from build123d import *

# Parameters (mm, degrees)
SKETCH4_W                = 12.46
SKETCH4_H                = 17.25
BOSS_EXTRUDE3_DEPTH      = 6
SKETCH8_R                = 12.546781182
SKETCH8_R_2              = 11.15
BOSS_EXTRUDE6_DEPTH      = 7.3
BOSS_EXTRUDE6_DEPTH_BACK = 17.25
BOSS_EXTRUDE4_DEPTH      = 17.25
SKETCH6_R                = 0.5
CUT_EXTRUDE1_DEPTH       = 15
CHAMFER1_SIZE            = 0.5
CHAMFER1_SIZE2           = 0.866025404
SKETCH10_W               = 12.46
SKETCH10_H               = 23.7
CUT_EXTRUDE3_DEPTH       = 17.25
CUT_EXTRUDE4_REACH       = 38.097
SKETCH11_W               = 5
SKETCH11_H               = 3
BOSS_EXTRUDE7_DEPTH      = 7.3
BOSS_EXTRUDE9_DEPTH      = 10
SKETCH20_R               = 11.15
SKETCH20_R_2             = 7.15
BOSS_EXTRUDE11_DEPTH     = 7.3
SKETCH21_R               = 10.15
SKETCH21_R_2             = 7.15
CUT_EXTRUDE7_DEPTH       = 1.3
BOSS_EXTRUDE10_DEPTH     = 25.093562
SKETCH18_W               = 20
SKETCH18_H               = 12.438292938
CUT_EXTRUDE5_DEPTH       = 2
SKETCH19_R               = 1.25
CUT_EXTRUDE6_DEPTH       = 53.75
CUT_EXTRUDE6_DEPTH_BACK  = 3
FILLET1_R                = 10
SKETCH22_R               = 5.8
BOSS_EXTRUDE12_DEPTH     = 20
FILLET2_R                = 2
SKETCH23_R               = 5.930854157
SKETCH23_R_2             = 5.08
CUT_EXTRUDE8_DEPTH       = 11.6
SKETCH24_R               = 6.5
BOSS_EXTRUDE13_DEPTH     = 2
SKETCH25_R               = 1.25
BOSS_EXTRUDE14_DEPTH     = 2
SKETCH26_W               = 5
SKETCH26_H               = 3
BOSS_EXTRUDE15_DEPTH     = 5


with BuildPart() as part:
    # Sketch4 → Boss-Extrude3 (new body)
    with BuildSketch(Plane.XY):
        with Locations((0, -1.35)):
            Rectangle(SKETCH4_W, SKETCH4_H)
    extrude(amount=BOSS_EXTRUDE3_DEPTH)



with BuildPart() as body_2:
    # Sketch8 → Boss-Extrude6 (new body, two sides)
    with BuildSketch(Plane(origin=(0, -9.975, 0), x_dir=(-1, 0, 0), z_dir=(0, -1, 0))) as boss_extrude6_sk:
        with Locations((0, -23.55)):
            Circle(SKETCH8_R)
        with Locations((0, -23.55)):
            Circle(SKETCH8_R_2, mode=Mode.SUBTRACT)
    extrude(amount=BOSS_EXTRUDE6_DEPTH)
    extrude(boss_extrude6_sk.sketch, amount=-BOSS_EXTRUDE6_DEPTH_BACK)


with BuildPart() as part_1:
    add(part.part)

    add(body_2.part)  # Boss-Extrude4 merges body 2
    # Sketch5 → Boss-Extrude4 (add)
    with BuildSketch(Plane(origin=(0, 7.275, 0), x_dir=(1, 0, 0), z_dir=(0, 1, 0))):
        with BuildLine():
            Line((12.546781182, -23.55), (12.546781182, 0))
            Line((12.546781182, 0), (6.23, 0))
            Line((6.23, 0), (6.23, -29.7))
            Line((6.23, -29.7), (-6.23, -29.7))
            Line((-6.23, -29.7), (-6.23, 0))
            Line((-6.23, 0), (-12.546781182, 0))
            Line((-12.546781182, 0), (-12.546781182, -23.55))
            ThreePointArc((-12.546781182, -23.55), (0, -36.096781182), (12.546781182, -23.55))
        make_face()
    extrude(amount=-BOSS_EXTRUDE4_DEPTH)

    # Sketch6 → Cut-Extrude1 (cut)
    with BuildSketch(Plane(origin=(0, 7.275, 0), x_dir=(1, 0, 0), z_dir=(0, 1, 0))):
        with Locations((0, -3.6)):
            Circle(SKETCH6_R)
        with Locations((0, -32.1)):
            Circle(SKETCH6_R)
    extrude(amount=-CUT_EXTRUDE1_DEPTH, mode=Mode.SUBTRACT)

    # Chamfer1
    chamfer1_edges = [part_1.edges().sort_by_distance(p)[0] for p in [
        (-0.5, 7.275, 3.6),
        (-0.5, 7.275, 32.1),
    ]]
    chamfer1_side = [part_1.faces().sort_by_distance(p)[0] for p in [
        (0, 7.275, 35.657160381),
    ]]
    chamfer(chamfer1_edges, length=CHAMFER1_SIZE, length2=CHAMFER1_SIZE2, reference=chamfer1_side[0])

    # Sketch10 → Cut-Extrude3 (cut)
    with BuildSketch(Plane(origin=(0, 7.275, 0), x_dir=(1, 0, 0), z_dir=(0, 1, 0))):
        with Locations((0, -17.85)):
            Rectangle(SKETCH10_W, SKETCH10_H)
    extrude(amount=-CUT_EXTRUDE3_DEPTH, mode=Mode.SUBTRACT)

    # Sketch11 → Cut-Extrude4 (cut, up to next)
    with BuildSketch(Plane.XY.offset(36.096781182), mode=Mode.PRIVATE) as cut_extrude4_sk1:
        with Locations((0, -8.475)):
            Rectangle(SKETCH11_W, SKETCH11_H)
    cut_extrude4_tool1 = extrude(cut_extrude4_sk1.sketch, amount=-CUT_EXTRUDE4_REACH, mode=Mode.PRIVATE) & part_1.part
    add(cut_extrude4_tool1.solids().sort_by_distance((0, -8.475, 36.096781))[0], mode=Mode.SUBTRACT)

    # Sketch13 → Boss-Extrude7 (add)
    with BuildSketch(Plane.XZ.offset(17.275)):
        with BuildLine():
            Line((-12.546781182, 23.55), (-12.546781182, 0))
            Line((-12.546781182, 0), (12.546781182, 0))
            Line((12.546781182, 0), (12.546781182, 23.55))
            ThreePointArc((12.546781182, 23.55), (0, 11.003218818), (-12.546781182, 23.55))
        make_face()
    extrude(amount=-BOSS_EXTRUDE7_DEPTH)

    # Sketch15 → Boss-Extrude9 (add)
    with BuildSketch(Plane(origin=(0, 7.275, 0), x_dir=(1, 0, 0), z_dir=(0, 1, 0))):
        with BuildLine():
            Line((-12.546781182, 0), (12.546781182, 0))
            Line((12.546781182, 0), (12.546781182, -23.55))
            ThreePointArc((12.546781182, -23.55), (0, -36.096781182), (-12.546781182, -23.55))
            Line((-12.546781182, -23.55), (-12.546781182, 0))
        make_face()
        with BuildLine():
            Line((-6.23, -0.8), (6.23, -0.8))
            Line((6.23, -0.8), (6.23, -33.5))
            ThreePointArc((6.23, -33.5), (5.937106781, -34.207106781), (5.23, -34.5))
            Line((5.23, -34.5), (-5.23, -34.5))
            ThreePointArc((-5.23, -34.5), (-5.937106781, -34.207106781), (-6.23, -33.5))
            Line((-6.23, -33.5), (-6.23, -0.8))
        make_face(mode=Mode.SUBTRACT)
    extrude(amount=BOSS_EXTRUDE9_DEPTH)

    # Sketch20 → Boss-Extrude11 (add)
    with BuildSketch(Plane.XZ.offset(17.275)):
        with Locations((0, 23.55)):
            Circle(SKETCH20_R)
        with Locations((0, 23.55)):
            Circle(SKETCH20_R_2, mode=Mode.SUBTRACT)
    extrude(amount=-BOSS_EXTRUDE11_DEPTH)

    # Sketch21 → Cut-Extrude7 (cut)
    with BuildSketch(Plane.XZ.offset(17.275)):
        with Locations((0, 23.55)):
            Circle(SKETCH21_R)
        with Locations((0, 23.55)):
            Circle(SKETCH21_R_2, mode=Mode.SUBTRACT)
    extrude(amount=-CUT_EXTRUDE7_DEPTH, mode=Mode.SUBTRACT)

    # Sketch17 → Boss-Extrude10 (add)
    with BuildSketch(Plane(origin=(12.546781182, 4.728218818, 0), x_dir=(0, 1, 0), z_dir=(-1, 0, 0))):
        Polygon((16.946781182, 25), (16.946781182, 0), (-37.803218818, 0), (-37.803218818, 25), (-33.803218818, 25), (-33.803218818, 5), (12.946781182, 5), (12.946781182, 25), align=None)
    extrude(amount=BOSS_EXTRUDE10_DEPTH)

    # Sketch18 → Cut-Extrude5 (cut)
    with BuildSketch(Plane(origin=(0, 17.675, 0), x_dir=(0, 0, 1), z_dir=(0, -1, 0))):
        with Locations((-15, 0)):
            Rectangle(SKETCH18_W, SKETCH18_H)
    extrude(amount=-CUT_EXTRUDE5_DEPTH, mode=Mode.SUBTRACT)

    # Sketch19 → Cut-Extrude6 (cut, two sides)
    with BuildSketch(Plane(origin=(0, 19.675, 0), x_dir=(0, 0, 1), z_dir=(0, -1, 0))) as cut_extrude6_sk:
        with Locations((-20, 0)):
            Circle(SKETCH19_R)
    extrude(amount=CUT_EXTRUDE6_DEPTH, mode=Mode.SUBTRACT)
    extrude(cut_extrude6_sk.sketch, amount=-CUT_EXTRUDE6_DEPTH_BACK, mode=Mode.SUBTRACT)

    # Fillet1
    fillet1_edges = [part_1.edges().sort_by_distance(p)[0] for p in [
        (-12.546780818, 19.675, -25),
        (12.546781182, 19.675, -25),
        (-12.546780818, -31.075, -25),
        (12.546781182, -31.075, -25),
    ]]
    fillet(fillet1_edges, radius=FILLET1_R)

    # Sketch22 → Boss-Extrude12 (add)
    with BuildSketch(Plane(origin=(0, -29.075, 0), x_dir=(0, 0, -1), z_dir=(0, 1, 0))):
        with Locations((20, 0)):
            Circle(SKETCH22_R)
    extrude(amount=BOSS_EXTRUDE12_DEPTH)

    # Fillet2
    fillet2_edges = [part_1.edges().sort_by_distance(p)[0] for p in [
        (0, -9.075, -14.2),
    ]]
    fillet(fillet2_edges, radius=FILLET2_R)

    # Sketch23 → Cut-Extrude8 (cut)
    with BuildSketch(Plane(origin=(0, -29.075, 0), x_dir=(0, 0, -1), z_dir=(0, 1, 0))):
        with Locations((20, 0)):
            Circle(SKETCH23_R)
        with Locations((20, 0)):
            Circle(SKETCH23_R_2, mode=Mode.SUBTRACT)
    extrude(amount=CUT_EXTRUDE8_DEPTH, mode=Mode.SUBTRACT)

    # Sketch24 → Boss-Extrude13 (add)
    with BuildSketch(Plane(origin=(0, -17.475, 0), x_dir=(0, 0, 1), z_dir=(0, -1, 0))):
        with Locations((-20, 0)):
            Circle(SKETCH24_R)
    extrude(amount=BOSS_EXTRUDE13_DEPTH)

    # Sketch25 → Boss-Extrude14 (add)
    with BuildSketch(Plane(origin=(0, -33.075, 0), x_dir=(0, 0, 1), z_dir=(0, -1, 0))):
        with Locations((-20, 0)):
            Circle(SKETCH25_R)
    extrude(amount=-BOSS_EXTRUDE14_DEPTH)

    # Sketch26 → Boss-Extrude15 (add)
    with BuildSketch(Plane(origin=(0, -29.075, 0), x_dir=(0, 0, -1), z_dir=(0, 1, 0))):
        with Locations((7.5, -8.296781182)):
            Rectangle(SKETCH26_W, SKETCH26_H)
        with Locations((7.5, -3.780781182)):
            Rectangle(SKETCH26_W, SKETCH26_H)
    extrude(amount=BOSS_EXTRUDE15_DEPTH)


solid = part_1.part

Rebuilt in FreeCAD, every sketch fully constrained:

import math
import FreeCAD as App
import Part
import Sketcher

V = App.Vector
Q = App.Units.Quantity


def edges_at(feature, points):
    """Names of the edges that pass closest to the given points."""
    edges = feature.Shape.Edges
    near = lambda p: min(range(len(edges)), key=lambda i: edges[i].distToShape(Part.Vertex(*p))[0])
    return sorted({f"Edge{near(p) + 1}" for p in points})


def add_polygon(sketch, points):
    """Adds a closed chain of lines whose ends are joined by coincident constraints."""
    first, n = sketch.GeometryCount, len(points)
    for a, b in zip(points, points[1:] + points[:1]):
        sketch.addGeometry(Part.LineSegment(App.Vector(*a, 0), App.Vector(*b, 0)), False)
    for i in range(n):
        sketch.addConstraint(Sketcher.Constraint("Coincident", first + i, 2, first + (i + 1) % n, 1))

doc = App.newDocument("Part")
params = doc.addObject("Spreadsheet::Sheet", "Params")
for row, (alias, value) in enumerate([
    ("sketch1_width", "12.46 mm"),
    ("sketch1_height", "17.25 mm"),
    ("pad1_length", "6 mm"),
    ("sketch2_diameter", "22.3 mm"),
    ("pad2_length", "7.3 mm"),
    ("pad2_length2", "17.25 mm"),
    ("sketch3_height", "29.7 mm"),
    ("sketch3_width", "12.46 mm"),
    ("sketch3_height2", "23.55 mm"),
    ("pad3_length", "17.25 mm"),
    ("sketch4_diameter", "1 mm"),
    ("pocket1_length", "15 mm"),
    ("chamfer_size", "0.5 mm"),
    ("chamfer_size2", "0.866025 mm"),
    ("sketch5_height", "23.7 mm"),
    ("sketch5_width", "12.46 mm"),
    ("pocket2_length", "17.25 mm"),
    ("sketch6_width", "5 mm"),
    ("sketch6_height", "3 mm"),
    ("sketch7_height", "23.55 mm"),
    ("pad4_length", "7.3 mm"),
    ("sketch8_radius", "1 mm"),
    ("sketch8_height", "32.7 mm"),
    ("sketch8_width", "12.46 mm"),
    ("sketch8_height2", "23.55 mm"),
    ("pad5_length", "10 mm"),
    ("sketch9_diameter", "22.3 mm"),
    ("sketch9_diameter2", "14.3 mm"),
    ("pad6_length", "7.3 mm"),
    ("sketch10_diameter", "20.3 mm"),
    ("sketch10_diameter2", "14.3 mm"),
    ("pocket4_length", "1.3 mm"),
    ("sketch11_width", "4 mm"),
    ("sketch11_height", "25 mm"),
    ("sketch11_height2", "20 mm"),
    ("sketch11_width2", "46.75 mm"),
    ("pad7_length", "25.093562 mm"),
    ("sketch12_height", "20 mm"),
    ("pocket5_length", "2 mm"),
    ("sketch13_diameter", "2.5 mm"),
    ("fillet_radius", "10 mm"),
    ("sketch14_diameter", "11.6 mm"),
    ("pad8_length", "20 mm"),
    ("fillet2_radius", "2 mm"),
    ("sketch15_diameter", "10.16 mm"),
    ("pocket7_length", "11.6 mm"),
    ("sketch16_diameter", "13 mm"),
    ("pad9_length", "2 mm"),
    ("sketch17_diameter", "2.5 mm"),
    ("pad10_length", "2 mm"),
    ("sketch18_width", "3 mm"),
    ("sketch18_height", "5 mm"),
    ("pad11_length", "5 mm"),
], start=1):
    params.set(f"A{row}", alias)
    params.set(f"B{row}", "=" + value)
    params.setAlias(f"B{row}", alias)

body = doc.addObject("PartDesign::Body", "Body")

sketch1 = body.newObject("Sketcher::SketchObject", "Sketch")
sketch1.AttachmentSupport = (doc.getObject("XY_Plane"), [""])
sketch1.MapMode = "FlatFace"
add_polygon(sketch1, [(-6, 7), (-6, -10), (6, -10), (6, 7)])
sketch1.addConstraint([
    Sketcher.Constraint("Vertical", 0),
    Sketcher.Constraint("Horizontal", 1),
    Sketcher.Constraint("Vertical", 2),
    Sketcher.Constraint("Horizontal", 3),
    Sketcher.Constraint("DistanceX", 1, 1, 1, 2, Q("12.46 mm")),
    Sketcher.Constraint("DistanceY", 0, 2, 0, 1, Q("17.25 mm")),
    Sketcher.Constraint("DistanceX", 0, 2, -1, 1, Q("6.23 mm")),
    Sketcher.Constraint("DistanceY", 0, 2, -1, 1, Q("9.975 mm")),
])
sketch1.setExpression("Constraints[8]", "Params.sketch1_width")
sketch1.setExpression("Constraints[9]", "Params.sketch1_height")
pad1 = body.newObject("PartDesign::Pad", "Pad")
pad1.Profile = sketch1
pad1.setExpression("Length", "Params.pad1_length")
body2 = doc.addObject("PartDesign::Body", "Body001")

sketch2 = body2.newObject("Sketcher::SketchObject", "Sketch001")
sketch2.AttachmentSupport = (doc.getObject("XZ_Plane001"), [""])
sketch2.MapMode = "FlatFace"
sketch2.AttachmentOffset = App.Placement(V(0, 0, 9.975), App.Rotation())
sketch2.addGeometry([
    Part.Circle(V(0, 24, 0), V(0, 0, 1), 13),
    Part.Circle(V(0, 24, 0), V(0, 0, 1), 11),
], False)
sketch2.addConstraint([
    Sketcher.Constraint("Coincident", 1, 3, 0, 3),
    Sketcher.Constraint("PointOnObject", 0, 3, -2),
    Sketcher.Constraint("Diameter", 1, Q("22.3 mm")),
    Sketcher.Constraint("DistanceY", -1, 1, 0, 3, Q("23.55 mm")),
    Sketcher.Constraint("Diameter", 0, Q("25.093562 mm")),
])
sketch2.setExpression("Constraints[2]", "Params.sketch2_diameter")
pad2 = body2.newObject("PartDesign::Pad", "Pad001")
pad2.Profile = sketch2
pad2.Type = "TwoLengths"
pad2.setExpression("Length", "Params.pad2_length")
pad2.setExpression("Length2", "Params.pad2_length2")
body.AllowCompound = True
doc.recompute()

boolean = body.newObject("PartDesign::Boolean", "Boolean")
boolean.Type = "Fuse"
boolean.addObjects([body2])

sketch3 = body.newObject("Sketcher::SketchObject", "Sketch002")
sketch3.AttachmentSupport = (doc.getObject("XZ_Plane"), [""])
sketch3.MapMode = "FlatFace"
sketch3.AttachmentOffset = App.Placement(V(0, 0, -7.275), App.Rotation())
sketch3.addGeometry([
    Part.LineSegment(V(13, 24, 0), V(13, 0, 0)),
    Part.LineSegment(V(13, 0, 0), V(6, 0, 0)),
    Part.LineSegment(V(6, 0, 0), V(6, 30, 0)),
    Part.LineSegment(V(6, 30, 0), V(-6, 30, 0)),
    Part.LineSegment(V(-6, 30, 0), V(-6, 0, 0)),
    Part.LineSegment(V(-6, 0, 0), V(-13, 0, 0)),
    Part.LineSegment(V(-13, 0, 0), V(-13, 24, 0)),
    Part.ArcOfCircle(Part.Circle(V(0, 24, 0), V(0, 0, 1), 13), math.radians(0), math.radians(180)),
], False)
sketch3.addConstraint([
    Sketcher.Constraint("Coincident", 0, 2, 1, 1),
    Sketcher.Constraint("Coincident", 1, 2, 2, 1),
    Sketcher.Constraint("Coincident", 2, 2, 3, 1),
    Sketcher.Constraint("Coincident", 3, 2, 4, 1),
    Sketcher.Constraint("Coincident", 4, 2, 5, 1),
    Sketcher.Constraint("Coincident", 5, 2, 6, 1),
    Sketcher.Constraint("Tangent", 6, 2, 7, 2),
    Sketcher.Constraint("Tangent", 7, 1, 0, 1),
    Sketcher.Constraint("Vertical", 0),
    Sketcher.Constraint("Horizontal", 1),
    Sketcher.Constraint("Vertical", 2),
    Sketcher.Constraint("Horizontal", 3),
    Sketcher.Constraint("Vertical", 4),
    Sketcher.Constraint("Horizontal", 5),
    Sketcher.Constraint("Vertical", 6),
    Sketcher.Constraint("Symmetric", 1, 2, 4, 2, -1, 1),
    Sketcher.Constraint("Symmetric", 0, 2, 5, 2, -2),
    Sketcher.Constraint("DistanceY", 2, 1, 2, 2, Q("29.7 mm")),
    Sketcher.Constraint("DistanceX", 3, 2, 3, 1, Q("12.46 mm")),
    Sketcher.Constraint("DistanceY", 0, 2, 0, 1, Q("23.55 mm")),
    Sketcher.Constraint("Radius", 7, Q("12.546781 mm")),
])
sketch3.setExpression("Constraints[17]", "Params.sketch3_height")
sketch3.setExpression("Constraints[18]", "Params.sketch3_width")
sketch3.setExpression("Constraints[19]", "Params.sketch3_height2")
pad3 = body.newObject("PartDesign::Pad", "Pad002")
pad3.Profile = sketch3
pad3.setExpression("Length", "Params.pad3_length")

sketch4 = body.newObject("Sketcher::SketchObject", "Sketch003")
sketch4.AttachmentSupport = (doc.getObject("XZ_Plane"), [""])
sketch4.MapMode = "FlatFace"
sketch4.AttachmentOffset = App.Placement(V(0, 0, -7.275), App.Rotation())
sketch4.addGeometry([
    Part.Circle(V(0, 3.6, 0), V(0, 0, 1), 0.5),
    Part.Circle(V(0, 32.1, 0), V(0, 0, 1), 0.5),
], False)
sketch4.addConstraint([
    Sketcher.Constraint("Equal", 0, 1),
    Sketcher.Constraint("PointOnObject", 0, 3, -2),
    Sketcher.Constraint("PointOnObject", 1, 3, -2),
    Sketcher.Constraint("Diameter", 0, Q("1 mm")),
    Sketcher.Constraint("DistanceY", -1, 1, 0, 3, Q("3.6 mm")),
    Sketcher.Constraint("DistanceY", -1, 1, 1, 3, Q("32.1 mm")),
])
sketch4.setExpression("Constraints[3]", "Params.sketch4_diameter")
pocket1 = body.newObject("PartDesign::Pocket", "Pocket")
pocket1.Profile = sketch4
pocket1.setExpression("Length", "Params.pocket1_length")
pocket1.Reversed = True
doc.recompute()

chamfer = body.newObject("PartDesign::Chamfer", "Chamfer")
chamfer.Base = (pocket1, edges_at(pocket1, [(-0.5, 7.275, 3.6), (-0.5, 7.275, 32.1)]))
chamfer.ChamferType = "Two distances"
chamfer.setExpression("Size", "Params.chamfer_size")
chamfer.setExpression("Size2", "Params.chamfer_size2")

sketch5 = body.newObject("Sketcher::SketchObject", "Sketch004")
sketch5.AttachmentSupport = (doc.getObject("XZ_Plane"), [""])
sketch5.MapMode = "FlatFace"
sketch5.AttachmentOffset = App.Placement(V(0, 0, -7.275), App.Rotation())
add_polygon(sketch5, [(-6, 6), (-6, 30), (6, 30), (6, 6)])
sketch5.addConstraint([
    Sketcher.Constraint("Vertical", 0),
    Sketcher.Constraint("Horizontal", 1),
    Sketcher.Constraint("Vertical", 2),
    Sketcher.Constraint("Horizontal", 3),
    Sketcher.Constraint("DistanceY", 0, 1, 0, 2, Q("23.7 mm")),
    Sketcher.Constraint("DistanceY", -1, 1, 2, 2, Q("6 mm")),
    Sketcher.Constraint("DistanceX", 1, 1, 1, 2, Q("12.46 mm")),
    Sketcher.Constraint("DistanceX", 0, 2, -1, 1, Q("6.23 mm")),
])
sketch5.setExpression("Constraints[8]", "Params.sketch5_height")
sketch5.setExpression("Constraints[10]", "Params.sketch5_width")
pocket2 = body.newObject("PartDesign::Pocket", "Pocket001")
pocket2.Profile = sketch5
pocket2.setExpression("Length", "Params.pocket2_length")
pocket2.Reversed = True

sketch6 = body.newObject("Sketcher::SketchObject", "Sketch005")
sketch6.AttachmentSupport = (doc.getObject("XY_Plane"), [""])
sketch6.MapMode = "FlatFace"
sketch6.AttachmentOffset = App.Placement(V(0, 0, 36.096781), App.Rotation())
add_polygon(sketch6, [(-2.5, -7), (-2.5, -10), (2.5, -10), (2.5, -7)])
sketch6.addConstraint([
    Sketcher.Constraint("Vertical", 0),
    Sketcher.Constraint("Horizontal", 1),
    Sketcher.Constraint("Vertical", 2),
    Sketcher.Constraint("Horizontal", 3),
    Sketcher.Constraint("DistanceX", 1, 1, 1, 2, Q("5 mm")),
    Sketcher.Constraint("DistanceY", 0, 2, 0, 1, Q("3 mm")),
    Sketcher.Constraint("DistanceX", 0, 2, -1, 1, Q("2.5 mm")),
    Sketcher.Constraint("DistanceY", 0, 2, -1, 1, Q("9.975 mm")),
])
sketch6.setExpression("Constraints[8]", "Params.sketch6_width")
sketch6.setExpression("Constraints[9]", "Params.sketch6_height")
pocket3 = body.newObject("PartDesign::Pocket", "Pocket002")
pocket3.Profile = sketch6
pocket3.Type = "UpToFirst"

sketch7 = body.newObject("Sketcher::SketchObject", "Sketch006")
sketch7.AttachmentSupport = (doc.getObject("XZ_Plane"), [""])
sketch7.MapMode = "FlatFace"
sketch7.AttachmentOffset = App.Placement(V(0, 0, 17.275), App.Rotation())
sketch7.addGeometry([
    Part.LineSegment(V(-13, 24, 0), V(-13, 0, 0)),
    Part.LineSegment(V(-13, 0, 0), V(13, 0, 0)),
    Part.LineSegment(V(13, 0, 0), V(13, 24, 0)),
    Part.ArcOfCircle(Part.Circle(V(0, 24, 0), V(0, 0, 1), 13), math.radians(180), math.radians(360)),
], False)
sketch7.addConstraint([
    Sketcher.Constraint("Coincident", 0, 2, 1, 1),
    Sketcher.Constraint("Coincident", 1, 2, 2, 1),
    Sketcher.Constraint("Tangent", 2, 2, 3, 2),
    Sketcher.Constraint("Tangent", 3, 1, 0, 1),
    Sketcher.Constraint("Vertical", 0),
    Sketcher.Constraint("Horizontal", 1),
    Sketcher.Constraint("Vertical", 2),
    Sketcher.Constraint("Symmetric", 0, 2, 1, 2, -1, 1),
    Sketcher.Constraint("DistanceY", 0, 2, 0, 1, Q("23.55 mm")),
    Sketcher.Constraint("Radius", 3, Q("12.546781 mm")),
])
sketch7.setExpression("Constraints[8]", "Params.sketch7_height")
pad4 = body.newObject("PartDesign::Pad", "Pad003")
pad4.Profile = sketch7
pad4.setExpression("Length", "Params.pad4_length")
pad4.Reversed = True

sketch8 = body.newObject("Sketcher::SketchObject", "Sketch007")
sketch8.AttachmentSupport = (doc.getObject("XZ_Plane"), [""])
sketch8.MapMode = "FlatFace"
sketch8.AttachmentOffset = App.Placement(V(0, 0, -7.275), App.Rotation())
sketch8.addGeometry([
    Part.LineSegment(V(12.5, 0, 0), V(-12.5, 0, 0)),
    Part.LineSegment(V(-12.5, 0, 0), V(-12.5, 23.6, 0)),
    Part.ArcOfCircle(Part.Circle(V(0, 23.6, 0), V(0, 0, 1), 12.5), math.radians(0), math.radians(180)),
    Part.LineSegment(V(12.5, 23.6, 0), V(12.5, 0, 0)),
    Part.LineSegment(V(-6.2, 0.8, 0), V(6.2, 0.8, 0)),
    Part.LineSegment(V(6.2, 0.8, 0), V(6.2, 33.5, 0)),
    Part.ArcOfCircle(Part.Circle(V(5.2, 33.5, 0), V(0, 0, 1), 1), math.radians(0), math.radians(90)),
    Part.LineSegment(V(5.2, 34.5, 0), V(-5.2, 34.5, 0)),
    Part.ArcOfCircle(Part.Circle(V(-5.2, 33.5, 0), V(0, 0, 1), 1), math.radians(90), math.radians(180)),
    Part.LineSegment(V(-6.2, 33.5, 0), V(-6.2, 0.8, 0)),
], False)
sketch8.addConstraint([
    Sketcher.Constraint("Coincident", 0, 2, 1, 1),
    Sketcher.Constraint("Tangent", 1, 2, 2, 2),
    Sketcher.Constraint("Tangent", 2, 1, 3, 1),
    Sketcher.Constraint("Coincident", 3, 2, 0, 1),
    Sketcher.Constraint("Coincident", 4, 2, 5, 1),
    Sketcher.Constraint("Tangent", 5, 2, 6, 1),
    Sketcher.Constraint("Tangent", 6, 2, 7, 1),
    Sketcher.Constraint("Tangent", 7, 2, 8, 1),
    Sketcher.Constraint("Tangent", 8, 2, 9, 1),
    Sketcher.Constraint("Coincident", 9, 2, 4, 1),
    Sketcher.Constraint("Horizontal", 0),
    Sketcher.Constraint("Vertical", 1),
    Sketcher.Constraint("Vertical", 3),
    Sketcher.Constraint("Horizontal", 4),
    Sketcher.Constraint("Vertical", 5),
    Sketcher.Constraint("Horizontal", 7),
    Sketcher.Constraint("Vertical", 9),
    Sketcher.Constraint("Equal", 6, 8),
    Sketcher.Constraint("Symmetric", 0, 2, 3, 2, -1, 1),
    Sketcher.Constraint("Radius", 6, Q("1 mm")),
    Sketcher.Constraint("DistanceY", 5, 1, 5, 2, Q("32.7 mm")),
    Sketcher.Constraint("DistanceX", 4, 1, 4, 2, Q("12.46 mm")),
    Sketcher.Constraint("DistanceY", 1, 1, 1, 2, Q("23.55 mm")),
    Sketcher.Constraint("DistanceY", -1, 1, 6, 3, Q("33.5 mm")),
    Sketcher.Constraint("DistanceX", -1, 1, 6, 3, Q("5.23 mm")),
    Sketcher.Constraint("Radius", 2, Q("12.546781 mm")),
])
sketch8.setExpression("Constraints[19]", "Params.sketch8_radius")
sketch8.setExpression("Constraints[20]", "Params.sketch8_height")
sketch8.setExpression("Constraints[21]", "Params.sketch8_width")
sketch8.setExpression("Constraints[22]", "Params.sketch8_height2")
pad5 = body.newObject("PartDesign::Pad", "Pad004")
pad5.Profile = sketch8
pad5.setExpression("Length", "Params.pad5_length")
pad5.Reversed = True

sketch9 = body.newObject("Sketcher::SketchObject", "Sketch008")
sketch9.AttachmentSupport = (doc.getObject("XZ_Plane"), [""])
sketch9.MapMode = "FlatFace"
sketch9.AttachmentOffset = App.Placement(V(0, 0, 17.275), App.Rotation())
sketch9.addGeometry([
    Part.Circle(V(0, 24, 0), V(0, 0, 1), 11),
    Part.Circle(V(0, 24, 0), V(0, 0, 1), 7),
], False)
sketch9.addConstraint([
    Sketcher.Constraint("Coincident", 1, 3, 0, 3),
    Sketcher.Constraint("PointOnObject", 0, 3, -2),
    Sketcher.Constraint("Diameter", 0, Q("22.3 mm")),
    Sketcher.Constraint("Diameter", 1, Q("14.3 mm")),
    Sketcher.Constraint("DistanceY", -1, 1, 0, 3, Q("23.55 mm")),
])
sketch9.setExpression("Constraints[2]", "Params.sketch9_diameter")
sketch9.setExpression("Constraints[3]", "Params.sketch9_diameter2")
pad6 = body.newObject("PartDesign::Pad", "Pad005")
pad6.Profile = sketch9
pad6.setExpression("Length", "Params.pad6_length")
pad6.Reversed = True

sketch10 = body.newObject("Sketcher::SketchObject", "Sketch009")
sketch10.AttachmentSupport = (doc.getObject("XZ_Plane"), [""])
sketch10.MapMode = "FlatFace"
sketch10.AttachmentOffset = App.Placement(V(0, 0, 17.275), App.Rotation())
sketch10.addGeometry([
    Part.Circle(V(0, 24, 0), V(0, 0, 1), 10),
    Part.Circle(V(0, 24, 0), V(0, 0, 1), 7),
], False)
sketch10.addConstraint([
    Sketcher.Constraint("Coincident", 1, 3, 0, 3),
    Sketcher.Constraint("PointOnObject", 0, 3, -2),
    Sketcher.Constraint("Diameter", 0, Q("20.3 mm")),
    Sketcher.Constraint("Diameter", 1, Q("14.3 mm")),
    Sketcher.Constraint("DistanceY", -1, 1, 0, 3, Q("23.55 mm")),
])
sketch10.setExpression("Constraints[2]", "Params.sketch10_diameter")
sketch10.setExpression("Constraints[3]", "Params.sketch10_diameter2")
pocket4 = body.newObject("PartDesign::Pocket", "Pocket003")
pocket4.Profile = sketch10
pocket4.setExpression("Length", "Params.pocket4_length")

sketch11 = body.newObject("Sketcher::SketchObject", "Sketch010")
sketch11.AttachmentSupport = (doc.getObject("YZ_Plane"), [""])
sketch11.MapMode = "FlatFace"
sketch11.AttachmentOffset = App.Placement(V(0, 0, 12.546781), App.Rotation())
add_polygon(sketch11, [(21.7, 0), (21.7, -25), (17.7, -25), (17.7, -5), (-29.1, -5), (-29.1, -25), (-33.1, -25), (-33.1, 0)])
sketch11.addConstraint([
    Sketcher.Constraint("Vertical", 0),
    Sketcher.Constraint("Horizontal", 1),
    Sketcher.Constraint("Vertical", 2),
    Sketcher.Constraint("Horizontal", 3),
    Sketcher.Constraint("Vertical", 4),
    Sketcher.Constraint("Horizontal", 5),
    Sketcher.Constraint("Vertical", 6),
    Sketcher.Constraint("Horizontal", 7),
    Sketcher.Constraint("PointOnObject", 6, 2, -1),
    Sketcher.Constraint("Horizontal", 1, 2, 4, 2),
    Sketcher.Constraint("Equal", 1, 5),
    Sketcher.Constraint("DistanceX", 1, 2, 1, 1, Q("4 mm")),
    Sketcher.Constraint("DistanceY", 0, 2, 0, 1, Q("25 mm")),
    Sketcher.Constraint("DistanceY", 2, 1, 2, 2, Q("20 mm")),
    Sketcher.Constraint("DistanceX", 3, 2, 3, 1, Q("46.75 mm")),
    Sketcher.Constraint("DistanceX", -1, 1, 0, 2, Q("21.675 mm")),
])
sketch11.setExpression("Constraints[19]", "Params.sketch11_width")
sketch11.setExpression("Constraints[20]", "Params.sketch11_height")
sketch11.setExpression("Constraints[21]", "Params.sketch11_height2")
sketch11.setExpression("Constraints[22]", "Params.sketch11_width2")
pad7 = body.newObject("PartDesign::Pad", "Pad006")
pad7.Profile = sketch11
pad7.setExpression("Length", "Params.pad7_length")
pad7.Reversed = True

sketch12 = body.newObject("Sketcher::SketchObject", "Sketch011")
sketch12.AttachmentSupport = (doc.getObject("XZ_Plane"), [""])
sketch12.MapMode = "FlatFace"
sketch12.AttachmentOffset = App.Placement(V(0, 0, -17.675), App.Rotation())
add_polygon(sketch12, [(-6, -25), (6, -25), (6, -5), (-6, -5)])
sketch12.addConstraint([
    Sketcher.Constraint("Horizontal", 0),
    Sketcher.Constraint("Vertical", 1),
    Sketcher.Constraint("Horizontal", 2),
    Sketcher.Constraint("Vertical", 3),
    Sketcher.Constraint("DistanceY", 1, 1, 1, 2, Q("20 mm")),
    Sketcher.Constraint("DistanceY", 0, 2, -1, 1, Q("25 mm")),
    Sketcher.Constraint("DistanceX", 0, 1, 0, 2, Q("12.438293 mm")),
    Sketcher.Constraint("DistanceX", -1, 1, 0, 2, Q("6.219146 mm")),
])
sketch12.setExpression("Constraints[8]", "Params.sketch12_height")
pocket5 = body.newObject("PartDesign::Pocket", "Pocket004")
pocket5.Profile = sketch12
pocket5.setExpression("Length", "Params.pocket5_length")

sketch13 = body.newObject("Sketcher::SketchObject", "Sketch012")
sketch13.AttachmentSupport = (doc.getObject("XZ_Plane"), [""])
sketch13.MapMode = "FlatFace"
sketch13.AttachmentOffset = App.Placement(V(0, 0, -19.675), App.Rotation())
sketch13.addGeometry(Part.Circle(V(0, -20, 0), V(0, 0, 1), 1.2), False)
sketch13.addConstraint([
    Sketcher.Constraint("PointOnObject", 0, 3, -2),
    Sketcher.Constraint("Diameter", 0, Q("2.5 mm")),
    Sketcher.Constraint("DistanceY", 0, 3, -1, 1, Q("20 mm")),
])
sketch13.setExpression("Constraints[1]", "Params.sketch13_diameter")
pocket6 = body.newObject("PartDesign::Pocket", "Pocket005")
pocket6.Profile = sketch13
pocket6.Type = "ThroughAll"
pocket6.Midplane = True
doc.recompute()

fillet = body.newObject("PartDesign::Fillet", "Fillet")
fillet.Base = (pocket6, edges_at(pocket6, [
    (-12.547, 19.675, -25),
    (12.547, 19.675, -25),
    (-12.547, -31.075, -25),
    (12.547, -31.075, -25),
]))
fillet.setExpression("Radius", "Params.fillet_radius")

sketch14 = body.newObject("Sketcher::SketchObject", "Sketch013")
sketch14.AttachmentSupport = (doc.getObject("XZ_Plane"), [""])
sketch14.MapMode = "FlatFace"
sketch14.AttachmentOffset = App.Placement(V(0, 0, 29.075), App.Rotation())
sketch14.addGeometry(Part.Circle(V(0, -20, 0), V(0, 0, 1), 6), False)
sketch14.addConstraint([
    Sketcher.Constraint("PointOnObject", 0, 3, -2),
    Sketcher.Constraint("Diameter", 0, Q("11.6 mm")),
    Sketcher.Constraint("DistanceY", 0, 3, -1, 1, Q("20 mm")),
])
sketch14.setExpression("Constraints[1]", "Params.sketch14_diameter")
pad8 = body.newObject("PartDesign::Pad", "Pad007")
pad8.Profile = sketch14
pad8.setExpression("Length", "Params.pad8_length")
pad8.Reversed = True
doc.recompute()

fillet2 = body.newObject("PartDesign::Fillet", "Fillet001")
fillet2.Base = (pad8, edges_at(pad8, [(0, -9.075, -14.2)]))
fillet2.setExpression("Radius", "Params.fillet2_radius")

sketch15 = body.newObject("Sketcher::SketchObject", "Sketch014")
sketch15.AttachmentSupport = (doc.getObject("XZ_Plane"), [""])
sketch15.MapMode = "FlatFace"
sketch15.AttachmentOffset = App.Placement(V(0, 0, 29.075), App.Rotation())
sketch15.addGeometry([
    Part.Circle(V(0, -20, 0), V(0, 0, 1), 6),
    Part.Circle(V(0, -20, 0), V(0, 0, 1), 5),
], False)
sketch15.addConstraint([
    Sketcher.Constraint("Coincident", 1, 3, 0, 3),
    Sketcher.Constraint("PointOnObject", 0, 3, -2),
    Sketcher.Constraint("Diameter", 1, Q("10.16 mm")),
    Sketcher.Constraint("DistanceY", 0, 3, -1, 1, Q("20 mm")),
    Sketcher.Constraint("Diameter", 0, Q("11.861708 mm")),
])
sketch15.setExpression("Constraints[2]", "Params.sketch15_diameter")
pocket7 = body.newObject("PartDesign::Pocket", "Pocket006")
pocket7.Profile = sketch15
pocket7.setExpression("Length", "Params.pocket7_length")

sketch16 = body.newObject("Sketcher::SketchObject", "Sketch015")
sketch16.AttachmentSupport = (doc.getObject("XZ_Plane"), [""])
sketch16.MapMode = "FlatFace"
sketch16.AttachmentOffset = App.Placement(V(0, 0, 17.475), App.Rotation())
sketch16.addGeometry(Part.Circle(V(0, -20, 0), V(0, 0, 1), 6), False)
sketch16.addConstraint([
    Sketcher.Constraint("PointOnObject", 0, 3, -2),
    Sketcher.Constraint("Diameter", 0, Q("13 mm")),
    Sketcher.Constraint("DistanceY", 0, 3, -1, 1, Q("20 mm")),
])
sketch16.setExpression("Constraints[1]", "Params.sketch16_diameter")
pad9 = body.newObject("PartDesign::Pad", "Pad008")
pad9.Profile = sketch16
pad9.setExpression("Length", "Params.pad9_length")

sketch17 = body.newObject("Sketcher::SketchObject", "Sketch016")
sketch17.AttachmentSupport = (doc.getObject("XZ_Plane"), [""])
sketch17.MapMode = "FlatFace"
sketch17.AttachmentOffset = App.Placement(V(0, 0, 33.075), App.Rotation())
sketch17.addGeometry(Part.Circle(V(0, -20, 0), V(0, 0, 1), 1.2), False)
sketch17.addConstraint([
    Sketcher.Constraint("PointOnObject", 0, 3, -2),
    Sketcher.Constraint("Diameter", 0, Q("2.5 mm")),
    Sketcher.Constraint("DistanceY", 0, 3, -1, 1, Q("20 mm")),
])
sketch17.setExpression("Constraints[1]", "Params.sketch17_diameter")
pad10 = body.newObject("PartDesign::Pad", "Pad009")
pad10.Profile = sketch17
pad10.setExpression("Length", "Params.pad10_length")
pad10.Reversed = True

sketch18 = body.newObject("Sketcher::SketchObject", "Sketch017")
sketch18.AttachmentSupport = (doc.getObject("XZ_Plane"), [""])
sketch18.MapMode = "FlatFace"
sketch18.AttachmentOffset = App.Placement(V(0, 0, 29.075), App.Rotation())
add_polygon(sketch18, [(6.8, -5), (9.8, -5), (9.8, -10), (6.8, -10)])
add_polygon(sketch18, [(2.3, -5), (5.3, -5), (5.3, -10), (2.3, -10)])
sketch18.addConstraint([
    Sketcher.Constraint("Horizontal", 0),
    Sketcher.Constraint("Vertical", 1),
    Sketcher.Constraint("Horizontal", 2),
    Sketcher.Constraint("Vertical", 3),
    Sketcher.Constraint("Horizontal", 4),
    Sketcher.Constraint("Vertical", 5),
    Sketcher.Constraint("Horizontal", 6),
    Sketcher.Constraint("Vertical", 7),
    Sketcher.Constraint("Horizontal", 3, 2, 4, 2),
    Sketcher.Constraint("Horizontal", 2, 2, 5, 2),
    Sketcher.Constraint("Equal", 2, 4),
    Sketcher.Constraint("DistanceX", 0, 1, 0, 2, Q("3 mm")),
    Sketcher.Constraint("DistanceY", 1, 2, 1, 1, Q("5 mm")),
    Sketcher.Constraint("DistanceY", 0, 2, -1, 1, Q("5 mm")),
    Sketcher.Constraint("DistanceX", 4, 2, 3, 2, Q("1.516 mm")),
    Sketcher.Constraint("DistanceX", -1, 1, 0, 2, Q("9.796781 mm")),
])
sketch18.setExpression("Constraints[19]", "Params.sketch18_width")
sketch18.setExpression("Constraints[20]", "Params.sketch18_height")
pad11 = body.newObject("PartDesign::Pad", "Pad010")
pad11.Profile = sketch18
pad11.setExpression("Length", "Params.pad11_length")
pad11.Reversed = True

doc.recompute()
